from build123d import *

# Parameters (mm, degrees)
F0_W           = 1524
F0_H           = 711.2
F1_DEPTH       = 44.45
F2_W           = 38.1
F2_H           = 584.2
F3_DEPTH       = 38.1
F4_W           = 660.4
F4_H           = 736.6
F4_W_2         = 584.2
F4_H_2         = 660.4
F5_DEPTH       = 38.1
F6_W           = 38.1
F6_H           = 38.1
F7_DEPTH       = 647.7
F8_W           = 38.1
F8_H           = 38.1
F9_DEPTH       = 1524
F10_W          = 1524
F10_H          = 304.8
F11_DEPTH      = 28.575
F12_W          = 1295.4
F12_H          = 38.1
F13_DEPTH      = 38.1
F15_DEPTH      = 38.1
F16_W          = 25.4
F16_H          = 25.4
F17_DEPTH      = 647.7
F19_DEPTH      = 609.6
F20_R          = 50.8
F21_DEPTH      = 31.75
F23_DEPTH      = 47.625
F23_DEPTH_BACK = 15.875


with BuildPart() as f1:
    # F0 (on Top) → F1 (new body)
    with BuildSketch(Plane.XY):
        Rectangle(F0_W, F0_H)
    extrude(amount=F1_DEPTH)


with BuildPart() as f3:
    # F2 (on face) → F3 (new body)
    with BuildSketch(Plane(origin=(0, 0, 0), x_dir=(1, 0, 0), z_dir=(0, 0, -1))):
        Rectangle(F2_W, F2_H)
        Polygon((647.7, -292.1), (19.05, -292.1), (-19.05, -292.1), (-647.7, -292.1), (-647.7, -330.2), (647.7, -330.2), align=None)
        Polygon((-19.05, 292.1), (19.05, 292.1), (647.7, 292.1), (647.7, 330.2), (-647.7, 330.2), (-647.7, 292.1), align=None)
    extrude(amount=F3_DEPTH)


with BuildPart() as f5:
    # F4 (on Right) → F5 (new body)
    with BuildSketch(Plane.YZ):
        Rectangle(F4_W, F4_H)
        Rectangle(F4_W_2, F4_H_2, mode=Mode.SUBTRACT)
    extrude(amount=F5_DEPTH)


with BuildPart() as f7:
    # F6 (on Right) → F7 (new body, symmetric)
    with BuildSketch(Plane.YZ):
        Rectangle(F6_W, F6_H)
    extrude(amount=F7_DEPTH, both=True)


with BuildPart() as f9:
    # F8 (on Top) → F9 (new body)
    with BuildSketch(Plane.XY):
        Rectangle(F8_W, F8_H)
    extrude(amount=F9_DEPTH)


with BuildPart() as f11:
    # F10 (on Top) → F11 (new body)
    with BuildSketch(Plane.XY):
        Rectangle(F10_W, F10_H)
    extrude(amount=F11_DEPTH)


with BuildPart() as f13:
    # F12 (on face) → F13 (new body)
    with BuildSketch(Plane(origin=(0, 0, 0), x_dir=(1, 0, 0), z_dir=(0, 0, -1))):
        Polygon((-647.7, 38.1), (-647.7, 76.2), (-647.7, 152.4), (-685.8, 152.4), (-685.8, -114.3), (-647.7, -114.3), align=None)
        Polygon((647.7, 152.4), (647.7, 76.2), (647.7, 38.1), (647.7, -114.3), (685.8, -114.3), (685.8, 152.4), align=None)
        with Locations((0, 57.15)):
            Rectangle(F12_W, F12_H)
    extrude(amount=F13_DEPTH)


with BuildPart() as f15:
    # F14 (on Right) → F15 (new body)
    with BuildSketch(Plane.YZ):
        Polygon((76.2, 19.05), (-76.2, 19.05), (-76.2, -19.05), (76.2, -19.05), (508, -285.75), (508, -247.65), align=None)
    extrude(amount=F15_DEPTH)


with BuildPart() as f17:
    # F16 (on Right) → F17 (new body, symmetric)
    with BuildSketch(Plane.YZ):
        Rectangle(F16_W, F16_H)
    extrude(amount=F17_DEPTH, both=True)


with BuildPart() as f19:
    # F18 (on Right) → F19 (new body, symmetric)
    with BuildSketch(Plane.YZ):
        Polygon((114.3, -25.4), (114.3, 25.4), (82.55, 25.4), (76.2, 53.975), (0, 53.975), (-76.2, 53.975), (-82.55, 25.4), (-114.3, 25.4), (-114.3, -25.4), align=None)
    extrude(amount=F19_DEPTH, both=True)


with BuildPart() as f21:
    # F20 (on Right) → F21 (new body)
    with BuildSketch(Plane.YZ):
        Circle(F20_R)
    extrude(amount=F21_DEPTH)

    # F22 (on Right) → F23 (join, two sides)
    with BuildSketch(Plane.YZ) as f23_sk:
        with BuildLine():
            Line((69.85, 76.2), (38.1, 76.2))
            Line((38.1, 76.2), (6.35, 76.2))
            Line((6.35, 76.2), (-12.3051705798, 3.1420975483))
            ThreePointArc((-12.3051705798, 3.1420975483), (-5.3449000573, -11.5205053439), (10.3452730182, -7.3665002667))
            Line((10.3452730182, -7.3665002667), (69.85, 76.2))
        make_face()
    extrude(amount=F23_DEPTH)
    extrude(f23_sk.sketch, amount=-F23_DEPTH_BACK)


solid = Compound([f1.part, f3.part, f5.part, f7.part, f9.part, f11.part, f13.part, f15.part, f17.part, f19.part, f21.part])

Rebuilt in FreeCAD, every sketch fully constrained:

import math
import FreeCAD as App
import Part
import Sketcher

V = App.Vector
Q = App.Units.Quantity


def add_polygon(sketch, points):
    """Adds a closed chain of lines whose ends are joined by coincident constraints."""
    first, n = sketch.GeometryCount, len(points)
    for a, b in zip(points, points[1:] + points[:1]):
        sketch.addGeometry(Part.LineSegment(App.Vector(*a, 0), App.Vector(*b, 0)), False)
    for i in range(n):
        sketch.addConstraint(Sketcher.Constraint("Coincident", first + i, 2, first + (i + 1) % n, 1))

doc = App.newDocument("Part")
body = doc.addObject("PartDesign::Body", "Body")

sketch1 = body.newObject("Sketcher::SketchObject", "Sketch")
sketch1.AttachmentSupport = (doc.getObject("XY_Plane"), [""])
sketch1.MapMode = "FlatFace"
add_polygon(sketch1, [(-762, 356), (-762, -356), (762, -356), (762, 356)])
sketch1.addConstraint([
    Sketcher.Constraint("Vertical", 0),
    Sketcher.Constraint("Horizontal", 1),
    Sketcher.Constraint("Vertical", 2),
    Sketcher.Constraint("Horizontal", 3),
    Sketcher.Constraint("Symmetric", 0, 2, 2, 2, -1, 1),
    Sketcher.Constraint("DistanceX", 1, 1, 1, 2, Q("60 in")),
    Sketcher.Constraint("DistanceY", 0, 2, 0, 1, Q("28 in")),
])
pad1 = body.newObject("PartDesign::Pad", "Pad")
pad1.Profile = sketch1
pad1.Length = Q("1.75 in")
body2 = doc.addObject("PartDesign::Body", "Body001")

sketch2 = body2.newObject("Sketcher::SketchObject", "Sketch001")
sketch2.AttachmentSupport = (doc.getObject("XY_Plane001"), [""])
sketch2.MapMode = "FlatFace"
add_polygon(sketch2, [(-19, -292), (-19, 292), (-648, 292), (-648, 330), (648, 330), (648, 292), (19, 292), (19, -292), (648, -292), (648, -330), (-648, -330), (-648, -292)])
sketch2.addConstraint([
    Sketcher.Constraint("Vertical", 0),
    Sketcher.Constraint("Horizontal", 1),
    Sketcher.Constraint("Vertical", 2),
    Sketcher.Constraint("Horizontal", 3),
    Sketcher.Constraint("Vertical", 4),
    Sketcher.Constraint("Horizontal", 5),
    Sketcher.Constraint("Vertical", 6),
    Sketcher.Constraint("Horizontal", 7),
    Sketcher.Constraint("Vertical", 8),
    Sketcher.Constraint("Horizontal", 9),
    Sketcher.Constraint("Vertical", 10),
    Sketcher.Constraint("Horizontal", 11),
    Sketcher.Constraint("Symmetric", 0, 2, 6, 2, -1, 1),
    Sketcher.Constraint("Symmetric", 2, 2, 8, 2, -1, 1),
    Sketcher.Constraint("Symmetric", 4, 2, 10, 2, -1, 1),
    Sketcher.Constraint("Symmetric", 1, 2, 4, 2, -2),
    Sketcher.Constraint("DistanceX", 3, 1, 3, 2, Q("51 in")),
    Sketcher.Constraint("DistanceY", 0, 1, 0, 2, Q("23 in")),
    Sketcher.Constraint("DistanceY", 2, 1, 2, 2, Q("1.5 in")),
    Sketcher.Constraint("DistanceX", 1, 2, 1, 1, Q("24.75 in")),
])
pad2 = body2.newObject("PartDesign::Pad", "Pad001")
pad2.Profile = sketch2
pad2.Length = Q("1.5 in")
pad2.Reversed = True
body3 = doc.addObject("PartDesign::Body", "Body002")

sketch3 = body3.newObject("Sketcher::SketchObject", "Sketch002")
sketch3.AttachmentSupport = (doc.getObject("YZ_Plane002"), [""])
sketch3.MapMode = "FlatFace"
add_polygon(sketch3, [(-330, 368), (-330, -368), (330, -368), (330, 368)])
add_polygon(sketch3, [(292, -330), (-292, -330), (-292, 330), (292, 330)])
sketch3.addConstraint([
    Sketcher.Constraint("Vertical", 0),
    Sketcher.Constraint("Horizontal", 1),
    Sketcher.Constraint("Vertical", 2),
    Sketcher.Constraint("Horizontal", 3),
    Sketcher.Constraint("Horizontal", 4),
    Sketcher.Constraint("Vertical", 5),
    Sketcher.Constraint("Horizontal", 6),
    Sketcher.Constraint("Vertical", 7),
    Sketcher.Constraint("Symmetric", 0, 2, 2, 2, -1, 1),
    Sketcher.Constraint("Symmetric", 4, 2, 6, 2, -1, 1),
    Sketcher.Constraint("Equal", 3, 5),
    Sketcher.Constraint("DistanceX", 1, 1, 1, 2, Q("26 in")),
    Sketcher.Constraint("DistanceX", 4, 2, 4, 1, Q("23 in")),
    Sketcher.Constraint("DistanceY", 0, 2, 0, 1, Q("29 in")),
])
pad3 = body3.newObject("PartDesign::Pad", "Pad002")
pad3.Profile = sketch3
pad3.Length = Q("1.5 in")
body4 = doc.addObject("PartDesign::Body", "Body003")

sketch4 = body4.newObject("Sketcher::SketchObject", "Sketch003")
sketch4.AttachmentSupport = (doc.getObject("YZ_Plane003"), [""])
sketch4.MapMode = "FlatFace"
add_polygon(sketch4, [(-19, 19), (-19, -19), (19, -19), (19, 19)])
sketch4.addConstraint([
    Sketcher.Constraint("Vertical", 0),
    Sketcher.Constraint("Horizontal", 1),
    Sketcher.Constraint("Vertical", 2),
    Sketcher.Constraint("Horizontal", 3),
    Sketcher.Constraint("Symmetric", 0, 2, 2, 2, -1, 1),
    Sketcher.Constraint("Equal", 3, 0),
    Sketcher.Constraint("DistanceX", 1, 1, 1, 2, Q("1.5 in")),
])
pad4 = body4.newObject("PartDesign::Pad", "Pad003")
pad4.Profile = sketch4
pad4.Length = Q("51 in")
pad4.Midplane = True
body5 = doc.addObject("PartDesign::Body", "Body004")

sketch5 = body5.newObject("Sketcher::SketchObject", "Sketch004")
sketch5.AttachmentSupport = (doc.getObject("XY_Plane004"), [""])
sketch5.MapMode = "FlatFace"
add_polygon(sketch5, [(-19, 19), (-19, -19), (19, -19), (19, 19)])
sketch5.addConstraint([
    Sketcher.Constraint("Vertical", 0),
    Sketcher.Constraint("Horizontal", 1),
    Sketcher.Constraint("Vertical", 2),
    Sketcher.Constraint("Horizontal", 3),
    Sketcher.Constraint("Symmetric", 0, 2, 2, 2, -1, 1),
    Sketcher.Constraint("Equal", 3, 0),
    Sketcher.Constraint("DistanceX", 1, 1, 1, 2, Q("1.5 in")),
])
pad5 = body5.newObject("PartDesign::Pad", "Pad004")
pad5.Profile = sketch5
pad5.Length = Q("60 in")
body6 = doc.addObject("PartDesign::Body", "Body005")

sketch6 = body6.newObject("Sketcher::SketchObject", "Sketch005")
sketch6.AttachmentSupport = (doc.getObject("XY_Plane005"), [""])
sketch6.MapMode = "FlatFace"
add_polygon(sketch6, [(-762, 152), (-762, -152), (762, -152), (762, 152)])
sketch6.addConstraint([
    Sketcher.Constraint("Vertical", 0),
    Sketcher.Constraint("Horizontal", 1),
    Sketcher.Constraint("Vertical", 2),
    Sketcher.Constraint("Horizontal", 3),
    Sketcher.Constraint("Symmetric", 0, 2, 2, 2, -1, 1),
    Sketcher.Constraint("DistanceX", 1, 1, 1, 2, Q("60 in")),
    Sketcher.Constraint("DistanceY", 0, 2, 0, 1, Q("12 in")),
])
pad6 = body6.newObject("PartDesign::Pad", "Pad005")
pad6.Profile = sketch6
pad6.Length = Q("1.125 in")
body7 = doc.addObject("PartDesign::Body", "Body006")

sketch7 = body7.newObject("Sketcher::SketchObject", "Sketch006")
sketch7.AttachmentSupport = (doc.getObject("XY_Plane006"), [""])
sketch7.MapMode = "FlatFace"
add_polygon(sketch7, [(-648, -152), (-686, -152), (-686, 114), (-648, 114), (-648, -38), (648, -38), (648, 114), (686, 114), (686, -152), (648, -152), (648, -76), (-648, -76)])
sketch7.addConstraint([
    Sketcher.Constraint("Horizontal", 0),
    Sketcher.Constraint("Vertical", 1),
    Sketcher.Constraint("Horizontal", 2),
    Sketcher.Constraint("Vertical", 3),
    Sketcher.Constraint("Horizontal", 4),
    Sketcher.Constraint("Vertical", 5),
    Sketcher.Constraint("Horizontal", 6),
    Sketcher.Constraint("Vertical", 7),
    Sketcher.Constraint("Horizontal", 8),
    Sketcher.Constraint("Vertical", 9),
    Sketcher.Constraint("Horizontal", 10),
    Sketcher.Constraint("Vertical", 11),
    Sketcher.Constraint("Symmetric", 2, 2, 5, 2, -2),
    Sketcher.Constraint("Symmetric", 0, 2, 7, 2, -2),
    Sketcher.Constraint("Vertical", 5, 2, 8, 2),
    Sketcher.Constraint("Vertical", 3, 2, 10, 2),
    Sketcher.Constraint("DistanceX", 4, 1, 4, 2, Q("51 in")),
    Sketcher.Constraint("DistanceY", 3, 2, 3, 1, Q("6 in")),
    Sketcher.Constraint("DistanceY", 9, 1, 9, 2, Q("3 in")),
    Sketcher.Constraint("DistanceX", 0, 2, 0, 1, Q("1.5 in")),
    Sketcher.Constraint("DistanceY", 1, 1, 1, 2, Q("10.5 in")),
    Sketcher.Constraint("DistanceY", 0, 2, -1, 1, Q("6 in")),
])
pad7 = body7.newObject("PartDesign::Pad", "Pad006")
pad7.Profile = sketch7
pad7.Length = Q("1.5 in")
pad7.Reversed = True
body8 = doc.addObject("PartDesign::Body", "Body007")

sketch8 = body8.newObject("Sketcher::SketchObject", "Sketch007")
sketch8.AttachmentSupport = (doc.getObject("YZ_Plane007"), [""])
sketch8.MapMode = "FlatFace"
add_polygon(sketch8, [(76, 19), (-76, 19), (-76, -19), (76, -19), (508, -286), (508, -248)])
sketch8.addConstraint([
    Sketcher.Constraint("Horizontal", 0),
    Sketcher.Constraint("Vertical", 1),
    Sketcher.Constraint("Horizontal", 2),
    Sketcher.Constraint("Vertical", 4),
    Sketcher.Constraint("Symmetric", 0, 2, 2, 2, -1, 1),
    Sketcher.Constraint("Parallel", 3, 5),
    Sketcher.Constraint("Vertical", 2, 2, 5, 2),
    Sketcher.Constraint("DistanceX", 0, 2, 0, 1, Q("6 in")),
    Sketcher.Constraint("DistanceY", 1, 2, 1, 1, Q("1.5 in")),
    Sketcher.Constraint("DistanceX", -1, 1, 3, 2, Q("20 in")),
    Sketcher.Constraint("DistanceY", 3, 2, 0, 2, Q("12 in")),
])
pad8 = body8.newObject("PartDesign::Pad", "Pad007")
pad8.Profile = sketch8
pad8.Length = Q("1.5 in")
body9 = doc.addObject("PartDesign::Body", "Body008")

sketch9 = body9.newObject("Sketcher::SketchObject", "Sketch008")
sketch9.AttachmentSupport = (doc.getObject("YZ_Plane008"), [""])
sketch9.MapMode = "FlatFace"
add_polygon(sketch9, [(-13, 13), (-13, -13), (13, -13), (13, 13)])
sketch9.addConstraint([
    Sketcher.Constraint("Vertical", 0),
    Sketcher.Constraint("Horizontal", 1),
    Sketcher.Constraint("Vertical", 2),
    Sketcher.Constraint("Horizontal", 3),
    Sketcher.Constraint("Symmetric", 0, 2, 2, 2, -1, 1),
    Sketcher.Constraint("Equal", 3, 0),
    Sketcher.Constraint("DistanceX", 1, 1, 1, 2, Q("1 in")),
])
pad9 = body9.newObject("PartDesign::Pad", "Pad008")
pad9.Profile = sketch9
pad9.Length = Q("51 in")
pad9.Midplane = True
body10 = doc.addObject("PartDesign::Body", "Body009")

sketch10 = body10.newObject("Sketcher::SketchObject", "Sketch009")
sketch10.AttachmentSupport = (doc.getObject("YZ_Plane009"), [""])
sketch10.MapMode = "FlatFace"
add_polygon(sketch10, [(114, -25), (114, 25), (83, 25), (76, 54), (-76, 54), (-83, 25), (-114, 25), (-114, -25)])
sketch10.addConstraint([
    Sketcher.Constraint("Vertical", 0),
    Sketcher.Constraint("Horizontal", 1),
    Sketcher.Constraint("Horizontal", 3),
    Sketcher.Constraint("Horizontal", 5),
    Sketcher.Constraint("Vertical", 6),
    Sketcher.Constraint("Horizontal", 7),
    Sketcher.Constraint("Symmetric", 0, 2, 6, 2, -1, 1),
    Sketcher.Constraint("Symmetric", 1, 2, 4, 2, -2),
    Sketcher.Constraint("Equal", 2, 4),
    Sketcher.Constraint("DistanceX", 3, 2, 3, 1, Q("6 in")),
    Sketcher.Constraint("DistanceX", 7, 1, 7, 2, Q("9 in")),
    Sketcher.Constraint("DistanceY", 0, 1, 0, 2, Q("2 in")),
    Sketcher.Constraint("DistanceX", 1, 2, 1, 1, Q("1.25 in")),
    Sketcher.Constraint("DistanceY", -1, 1, 2, 2, Q("2.125 in")),
])
pad10 = body10.newObject("PartDesign::Pad", "Pad009")
pad10.Profile = sketch10
pad10.Length = Q("48 in")
pad10.Midplane = True
body11 = doc.addObject("PartDesign::Body", "Body010")

sketch11 = body11.newObject("Sketcher::SketchObject", "Sketch010")
sketch11.AttachmentSupport = (doc.getObject("YZ_Plane010"), [""])
sketch11.MapMode = "FlatFace"
sketch11.addGeometry(Part.Circle(V(0, 0, 0), V(0, 0, 1), 51), False)
sketch11.addConstraint([
    Sketcher.Constraint("Coincident", 0, 3, -1, 1),
    Sketcher.Constraint("Diameter", 0, Q("4 in")),
])
pad11 = body11.newObject("PartDesign::Pad", "Pad010")
pad11.Profile = sketch11
pad11.Length = Q("1.25 in")

sketch12 = body11.newObject("Sketcher::SketchObject", "Sketch011")
sketch12.AttachmentSupport = (doc.getObject("YZ_Plane010"), [""])
sketch12.MapMode = "FlatFace"
sketch12.addGeometry([
    Part.LineSegment(V(70, 76, 0), V(6, 76, 0)),
    Part.LineSegment(V(6, 76, 0), V(-12, 3, 0)),
    Part.ArcOfCircle(Part.Circle(V(0, 0, 0), V(0, 0, 1), 13), math.radians(166), math.radians(325)),
    Part.LineSegment(V(10, -7, 0), V(70, 76, 0)),
], False)
sketch12.addConstraint([
    Sketcher.Constraint("Coincident", 0, 2, 1, 1),
    Sketcher.Constraint("Tangent", 1, 2, 2, 1),
    Sketcher.Constraint("Tangent", 2, 2, 3, 1),
    Sketcher.Constraint("Coincident", 3, 2, 0, 1),
    Sketcher.Constraint("Horizontal", 0),
    Sketcher.Constraint("Coincident", 2, 3, -1, 1),
    Sketcher.Constraint("Radius", 2, Q("0.5 in")),
    Sketcher.Constraint("DistanceX", 0, 2, 0, 1, Q("2.5 in")),
    Sketcher.Constraint("DistanceY", -1, 1, 0, 2, Q("3 in")),
    Sketcher.Constraint("DistanceX", -1, 1, 0, 2, Q("0.25 in")),
])
pad12 = body11.newObject("PartDesign::Pad", "Pad011")
pad12.Profile = sketch12
pad12.Type = "TwoLengths"
pad12.Length = Q("1.875 in")
pad12.Length2 = Q("0.625 in")

doc.recompute()
